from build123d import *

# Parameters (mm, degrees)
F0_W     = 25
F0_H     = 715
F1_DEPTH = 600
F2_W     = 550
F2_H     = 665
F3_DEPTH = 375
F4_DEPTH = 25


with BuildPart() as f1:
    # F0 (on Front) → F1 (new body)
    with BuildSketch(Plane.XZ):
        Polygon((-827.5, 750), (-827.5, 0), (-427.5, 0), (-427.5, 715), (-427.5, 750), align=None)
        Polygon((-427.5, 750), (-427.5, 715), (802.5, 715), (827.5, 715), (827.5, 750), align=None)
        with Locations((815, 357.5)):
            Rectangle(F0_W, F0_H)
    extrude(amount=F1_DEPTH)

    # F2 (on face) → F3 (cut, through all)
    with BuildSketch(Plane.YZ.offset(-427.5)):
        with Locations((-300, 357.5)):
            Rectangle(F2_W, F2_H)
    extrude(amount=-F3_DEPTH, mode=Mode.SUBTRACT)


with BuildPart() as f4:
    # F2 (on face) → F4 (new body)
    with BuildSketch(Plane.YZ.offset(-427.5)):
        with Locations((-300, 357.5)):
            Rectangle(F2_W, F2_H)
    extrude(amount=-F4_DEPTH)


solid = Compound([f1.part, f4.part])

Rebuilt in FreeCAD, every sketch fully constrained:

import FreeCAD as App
import Part
import Sketcher

V = App.Vector
Q = App.Units.Quantity


def add_polygon(sketch, points):
    """Adds a closed chain of lines whose ends are joined by coincident constraints."""
    first, n = sketch.GeometryCount, len(points)
    for a, b in zip(points, points[1:] + points[:1]):
        sketch.addGeometry(Part.LineSegment(App.Vector(*a, 0), App.Vector(*b, 0)), False)
    for i in range(n):
        sketch.addConstraint(Sketcher.Constraint("Coincident", first + i, 2, first + (i + 1) % n, 1))

doc = App.newDocument("Part")
body = doc.addObject("PartDesign::Body", "Body")

# Sketch on XZ plane
sketch1 = body.newObject("Sketcher::SketchObject", "Sketch")
sketch1.AttachmentSupport = (doc.getObject("XZ_Plane"), [""])
sketch1.MapMode = "FlatFace"
add_polygon(sketch1, [(-828, 750), (-828, 0), (-428, 0), (-428, 715), (802, 715), (802, 0), (828, 0), (828, 750)])  # lines 0-7
sketch1.addConstraint(Sketcher.Constraint("Vertical", 0))
sketch1.addConstraint(Sketcher.Constraint("Horizontal", 1))
sketch1.addConstraint(Sketcher.Constraint("Vertical", 2))
sketch1.addConstraint(Sketcher.Constraint("Horizontal", 3))
sketch1.addConstraint(Sketcher.Constraint("Vertical", 4))
sketch1.addConstraint(Sketcher.Constraint("Horizontal", 5))
sketch1.addConstraint(Sketcher.Constraint("Vertical", 6))
sketch1.addConstraint(Sketcher.Constraint("Horizontal", 7))
sketch1.addConstraint(Sketcher.Constraint("Symmetric", 0, 2, 5, 2, -1, 1))
sketch1.addConstraint(Sketcher.Constraint("PointOnObject", 0, 2, -1))
sketch1.addConstraint(Sketcher.Constraint("DistanceX", 1, 1, 1, 2, Q("400 mm")))
sketch1.addConstraint(Sketcher.Constraint("DistanceX", 3, 1, 3, 2, Q("1230 mm")))
sketch1.addConstraint(Sketcher.Constraint("DistanceX", 5, 1, 5, 2, Q("25 mm")))
sketch1.addConstraint(Sketcher.Constraint("DistanceY", 0, 2, 0, 1, Q("750 mm")))
sketch1.addConstraint(Sketcher.Constraint("DistanceY", 2, 1, 2, 2, Q("715 mm")))
pad1 = body.newObject("PartDesign::Pad", "Pad")
pad1.Profile = sketch1
pad1.Length = 600

# Sketch on YZ plane
sketch2 = body.newObject("Sketcher::SketchObject", "Sketch001")
sketch2.AttachmentSupport = (doc.getObject("YZ_Plane"), [""])
sketch2.MapMode = "FlatFace"
sketch2.AttachmentOffset = App.Placement(V(0, 0, -427.5), App.Rotation())
add_polygon(sketch2, [(-575, 690), (-575, 25), (-25, 25), (-25, 690)])  # lines 0-3
sketch2.addConstraint(Sketcher.Constraint("Vertical", 0))
sketch2.addConstraint(Sketcher.Constraint("Horizontal", 1))
sketch2.addConstraint(Sketcher.Constraint("Vertical", 2))
sketch2.addConstraint(Sketcher.Constraint("Horizontal", 3))
sketch2.addConstraint(Sketcher.Constraint("DistanceX", 1, 1, 1, 2, Q("550 mm")))
sketch2.addConstraint(Sketcher.Constraint("DistanceY", 0, 2, 0, 1, Q("665 mm")))
sketch2.addConstraint(Sketcher.Constraint("DistanceX", 0, 2, -1, 1, Q("575 mm")))
sketch2.addConstraint(Sketcher.Constraint("DistanceY", -1, 1, 0, 2, Q("25 mm")))
pocket1 = body.newObject("PartDesign::Pocket", "Pocket")
pocket1.Profile = sketch2
pocket1.Length = 375
body2 = doc.addObject("PartDesign::Body", "Body001")

# Sketch on YZ plane
sketch3 = body2.newObject("Sketcher::SketchObject", "Sketch002")
sketch3.AttachmentSupport = (doc.getObject("YZ_Plane001"), [""])
sketch3.MapMode = "FlatFace"
sketch3.AttachmentOffset = App.Placement(V(0, 0, -427.5), App.Rotation())
add_polygon(sketch3, [(-575, 690), (-575, 25), (-25, 25), (-25, 690)])  # lines 0-3
sketch3.addConstraint(Sketcher.Constraint("Vertical", 0))
sketch3.addConstraint(Sketcher.Constraint("Horizontal", 1))
sketch3.addConstraint(Sketcher.Constraint("Vertical", 2))
sketch3.addConstraint(Sketcher.Constraint("Horizontal", 3))
sketch3.addConstraint(Sketcher.Constraint("DistanceX", 1, 1, 1, 2, Q("550 mm")))
sketch3.addConstraint(Sketcher.Constraint("DistanceY", 0, 2, 0, 1, Q("665 mm")))
sketch3.addConstraint(Sketcher.Constraint("DistanceX", 0, 2, -1, 1, Q("575 mm")))
sketch3.addConstraint(Sketcher.Constraint("DistanceY", -1, 1, 0, 2, Q("25 mm")))
pad2 = body2.newObject("PartDesign::Pad", "Pad001")
pad2.Profile = sketch3
pad2.Length = 25
pad2.Reversed = True

doc.recompute()
